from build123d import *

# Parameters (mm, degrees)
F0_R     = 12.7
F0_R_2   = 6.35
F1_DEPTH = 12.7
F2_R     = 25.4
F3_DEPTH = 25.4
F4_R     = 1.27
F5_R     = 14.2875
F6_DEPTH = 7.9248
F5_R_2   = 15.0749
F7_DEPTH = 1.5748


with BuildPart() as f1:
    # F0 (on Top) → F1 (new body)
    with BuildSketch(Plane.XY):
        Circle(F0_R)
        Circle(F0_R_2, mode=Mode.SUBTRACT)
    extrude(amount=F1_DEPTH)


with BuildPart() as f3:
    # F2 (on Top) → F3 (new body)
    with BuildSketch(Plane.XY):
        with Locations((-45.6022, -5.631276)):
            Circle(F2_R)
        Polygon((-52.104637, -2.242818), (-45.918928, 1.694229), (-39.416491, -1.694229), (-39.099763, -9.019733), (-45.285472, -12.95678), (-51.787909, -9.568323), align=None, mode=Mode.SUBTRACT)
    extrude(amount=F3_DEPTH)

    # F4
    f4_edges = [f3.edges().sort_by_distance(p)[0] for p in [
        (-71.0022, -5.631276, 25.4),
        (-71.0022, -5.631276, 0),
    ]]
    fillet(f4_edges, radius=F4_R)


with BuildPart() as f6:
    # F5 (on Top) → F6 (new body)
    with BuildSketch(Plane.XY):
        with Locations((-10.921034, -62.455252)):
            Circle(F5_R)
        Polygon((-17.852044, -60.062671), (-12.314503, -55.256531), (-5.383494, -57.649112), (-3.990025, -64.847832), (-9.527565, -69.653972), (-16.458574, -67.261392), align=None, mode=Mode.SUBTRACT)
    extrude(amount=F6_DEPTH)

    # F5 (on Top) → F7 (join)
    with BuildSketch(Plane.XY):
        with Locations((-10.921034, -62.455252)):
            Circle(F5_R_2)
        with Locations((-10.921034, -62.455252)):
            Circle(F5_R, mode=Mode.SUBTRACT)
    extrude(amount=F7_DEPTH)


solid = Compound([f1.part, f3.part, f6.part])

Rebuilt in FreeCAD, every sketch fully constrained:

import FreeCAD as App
import Part
import Sketcher

V = App.Vector
Q = App.Units.Quantity


def edges_at(feature, points):
    """Names of the edges that pass closest to the given points."""
    edges = feature.Shape.Edges
    near = lambda p: min(range(len(edges)), key=lambda i: edges[i].distToShape(Part.Vertex(*p))[0])
    return sorted({f"Edge{near(p) + 1}" for p in points})

doc = App.newDocument("Part")
body = doc.addObject("PartDesign::Body", "Body")

sketch1 = doc.addObject("Sketcher::SketchObject", "Sketch")
body.addObject(sketch1)
sketch1.AttachmentSupport = (doc.XY_Plane, [""])
sketch1.MapMode = "FlatFace"
sketch1.addGeometry([
    Part.Circle(V(0, 0, 0), V(0, 0, 1), 12.7),
    Part.Circle(V(0, 0, 0), V(0, 0, 1), 6.35),
], False)
sketch1.addConstraint([
    Sketcher.Constraint("Coincident", 0, 3, -1, 1),
    Sketcher.Constraint("Coincident", 1, 3, -1, 1),
    Sketcher.Constraint("Diameter", 0, Q("1 in")),
    Sketcher.Constraint("Diameter", 1, Q("0.5 in")),
])
pad1 = doc.addObject("PartDesign::Pad", "Pad")
body.addObject(pad1)
pad1.Profile = sketch1
pad1.Length = Q("0.5 in")
body2 = doc.addObject("PartDesign::Body", "Body001")

sketch2 = doc.addObject("Sketcher::SketchObject", "Sketch001")
body2.addObject(sketch2)
sketch2.AttachmentSupport = (doc.getObject("XY_Plane001"), [""])
sketch2.MapMode = "FlatFace"
sketch2.addGeometry([
    Part.Circle(V(-45.6022, -5.631276, 0), V(0, 0, 1), 25.4),
    Part.LineSegment(V(-51.787909, -9.568323, 0), V(-52.104637, -2.242818, 0)),
    Part.LineSegment(V(-52.104637, -2.242818, 0), V(-45.918928, 1.694229, 0)),
    Part.LineSegment(V(-45.918928, 1.694229, 0), V(-39.416491, -1.694229, 0)),
    Part.LineSegment(V(-39.416491, -1.694229, 0), V(-39.099763, -9.019733, 0)),
    Part.LineSegment(V(-39.099763, -9.019733, 0), V(-45.285472, -12.95678, 0)),
    Part.LineSegment(V(-45.285472, -12.95678, 0), V(-51.787909, -9.568323, 0)),
], False)
sketch2.addConstraint([
    Sketcher.Constraint("Coincident", 1, 2, 2, 1),
    Sketcher.Constraint("Coincident", 2, 2, 3, 1),
    Sketcher.Constraint("Coincident", 3, 2, 4, 1),
    Sketcher.Constraint("Coincident", 4, 2, 5, 1),
    Sketcher.Constraint("Coincident", 5, 2, 6, 1),
    Sketcher.Constraint("Coincident", 6, 2, 1, 1),
    Sketcher.Constraint("Parallel", 1, 4),
    Sketcher.Constraint("Parallel", 2, 5),
    Sketcher.Constraint("Parallel", 3, 6),
    Sketcher.Constraint("Equal", 1, 2),
    Sketcher.Constraint("Equal", 2, 3),
    Sketcher.Constraint("Equal", 3, 4),
    Sketcher.Constraint("Diameter", 0, Q("2 in")),
    Sketcher.Constraint("DistanceY", 1, 2, -1, 1, Q("0.0882999 in")),
    Sketcher.Constraint("DistanceX", 0, 3, -1, 1, Q("45.6022 mm")),
    Sketcher.Constraint("Distance", 1, Q("7.332349 mm")),
    Sketcher.Constraint("DistanceY", -1, 1, 2, 2, Q("1.694229 mm")),
    Sketcher.Constraint("DistanceX", 3, 2, -1, 1, Q("39.416491 mm")),
    Sketcher.Constraint("DistanceY", 3, 2, -1, 1, Q("1.694229 mm")),
    Sketcher.Constraint("DistanceY", 5, 2, -1, 1, Q("12.95678 mm")),
    Sketcher.Constraint("DistanceY", 0, 3, -1, 1, Q("5.631276 mm")),
])
pad2 = doc.addObject("PartDesign::Pad", "Pad001")
body2.addObject(pad2)
pad2.Profile = sketch2
pad2.Length = Q("1 in")
doc.recompute()

fillet = doc.addObject("PartDesign::Fillet", "Fillet")
body2.addObject(fillet)
fillet.Base = (pad2, edges_at(pad2, [(-71.002, -5.631, 25.4), (-71.002, -5.631, 0)]))
fillet.Radius = Q("0.05 in")
body3 = doc.addObject("PartDesign::Body", "Body002")

sketch3 = doc.addObject("Sketcher::SketchObject", "Sketch002")
body3.addObject(sketch3)
sketch3.AttachmentSupport = (doc.getObject("XY_Plane002"), [""])
sketch3.MapMode = "FlatFace"
sketch3.addGeometry([
    Part.Circle(V(-10.921034, -62.455252, 0), V(0, 0, 1), 14.2875),
    Part.LineSegment(V(-16.458574, -67.261392, 0), V(-17.852044, -60.062671, 0)),
    Part.LineSegment(V(-17.852044, -60.062671, 0), V(-12.314503, -55.256531, 0)),
    Part.LineSegment(V(-12.314503, -55.256531, 0), V(-5.383494, -57.649112, 0)),
    Part.LineSegment(V(-5.383494, -57.649112, 0), V(-3.990025, -64.847832, 0)),
    Part.LineSegment(V(-3.990025, -64.847832, 0), V(-9.527565, -69.653972, 0)),
    Part.LineSegment(V(-9.527565, -69.653972, 0), V(-16.458574, -67.261392, 0)),
], False)
sketch3.addConstraint([
    Sketcher.Constraint("Coincident", 1, 2, 2, 1),
    Sketcher.Constraint("Coincident", 2, 2, 3, 1),
    Sketcher.Constraint("Coincident", 3, 2, 4, 1),
    Sketcher.Constraint("Coincident", 4, 2, 5, 1),
    Sketcher.Constraint("Coincident", 5, 2, 6, 1),
    Sketcher.Constraint("Coincident", 6, 2, 1, 1),
    Sketcher.Constraint("Parallel", 1, 4),
    Sketcher.Constraint("Parallel", 2, 5),
    Sketcher.Constraint("Parallel", 3, 6),
    Sketcher.Constraint("Equal", 1, 2),
    Sketcher.Constraint("Equal", 2, 3),
    Sketcher.Constraint("Equal", 3, 4),
    Sketcher.Constraint("Diameter", 0, Q("1.125 in")),
    Sketcher.Constraint("DistanceY", 4, 2, 2, 2, Q("9.591301 mm")),
    Sketcher.Constraint("Distance", 1, Q("7.332349 mm")),
    Sketcher.Constraint("DistanceY", 1, 2, -1, 1, Q("60.062671 mm")),
    Sketcher.Constraint("DistanceY", 2, 2, -1, 1, Q("55.256531 mm")),
    Sketcher.Constraint("DistanceY", 6, 2, -1, 1, Q("67.261392 mm")),
    Sketcher.Constraint("DistanceX", 1, 2, 0, 3, Q("6.93101 mm")),
    Sketcher.Constraint("DistanceY", 0, 3, 1, 2, Q("2.392581 mm")),
    Sketcher.Constraint("DistanceX", 0, 3, -1, 1, Q("10.921034 mm")),
])
pad3 = doc.addObject("PartDesign::Pad", "Pad002")
body3.addObject(pad3)
pad3.Profile = sketch3
pad3.Length = Q("0.312 in")

sketch4 = doc.addObject("Sketcher::SketchObject", "Sketch003")
body3.addObject(sketch4)
sketch4.AttachmentSupport = (doc.getObject("XY_Plane002"), [""])
sketch4.MapMode = "FlatFace"
sketch4.addGeometry([
    Part.Circle(V(-10.921034, -62.455252, 0), V(0, 0, 1), 15.0749),
    Part.Circle(V(-10.921034, -62.455252, 0), V(0, 0, 1), 14.2875),
], False)
sketch4.addConstraint([
    Sketcher.Constraint("Coincident", 1, 3, 0, 3),
    Sketcher.Constraint("Diameter", 0, Q("1.187 in")),
    Sketcher.Constraint("Diameter", 1, Q("1.125 in")),
    Sketcher.Constraint("DistanceX", 0, 3, -1, 1, Q("10.921034 mm")),
    Sketcher.Constraint("DistanceY", 0, 3, -1, 1, Q("62.455252 mm")),
])
pad4 = doc.addObject("PartDesign::Pad", "Pad003")
body3.addObject(pad4)
pad4.Profile = sketch4
pad4.Length = Q("0.062 in")

doc.recompute()
